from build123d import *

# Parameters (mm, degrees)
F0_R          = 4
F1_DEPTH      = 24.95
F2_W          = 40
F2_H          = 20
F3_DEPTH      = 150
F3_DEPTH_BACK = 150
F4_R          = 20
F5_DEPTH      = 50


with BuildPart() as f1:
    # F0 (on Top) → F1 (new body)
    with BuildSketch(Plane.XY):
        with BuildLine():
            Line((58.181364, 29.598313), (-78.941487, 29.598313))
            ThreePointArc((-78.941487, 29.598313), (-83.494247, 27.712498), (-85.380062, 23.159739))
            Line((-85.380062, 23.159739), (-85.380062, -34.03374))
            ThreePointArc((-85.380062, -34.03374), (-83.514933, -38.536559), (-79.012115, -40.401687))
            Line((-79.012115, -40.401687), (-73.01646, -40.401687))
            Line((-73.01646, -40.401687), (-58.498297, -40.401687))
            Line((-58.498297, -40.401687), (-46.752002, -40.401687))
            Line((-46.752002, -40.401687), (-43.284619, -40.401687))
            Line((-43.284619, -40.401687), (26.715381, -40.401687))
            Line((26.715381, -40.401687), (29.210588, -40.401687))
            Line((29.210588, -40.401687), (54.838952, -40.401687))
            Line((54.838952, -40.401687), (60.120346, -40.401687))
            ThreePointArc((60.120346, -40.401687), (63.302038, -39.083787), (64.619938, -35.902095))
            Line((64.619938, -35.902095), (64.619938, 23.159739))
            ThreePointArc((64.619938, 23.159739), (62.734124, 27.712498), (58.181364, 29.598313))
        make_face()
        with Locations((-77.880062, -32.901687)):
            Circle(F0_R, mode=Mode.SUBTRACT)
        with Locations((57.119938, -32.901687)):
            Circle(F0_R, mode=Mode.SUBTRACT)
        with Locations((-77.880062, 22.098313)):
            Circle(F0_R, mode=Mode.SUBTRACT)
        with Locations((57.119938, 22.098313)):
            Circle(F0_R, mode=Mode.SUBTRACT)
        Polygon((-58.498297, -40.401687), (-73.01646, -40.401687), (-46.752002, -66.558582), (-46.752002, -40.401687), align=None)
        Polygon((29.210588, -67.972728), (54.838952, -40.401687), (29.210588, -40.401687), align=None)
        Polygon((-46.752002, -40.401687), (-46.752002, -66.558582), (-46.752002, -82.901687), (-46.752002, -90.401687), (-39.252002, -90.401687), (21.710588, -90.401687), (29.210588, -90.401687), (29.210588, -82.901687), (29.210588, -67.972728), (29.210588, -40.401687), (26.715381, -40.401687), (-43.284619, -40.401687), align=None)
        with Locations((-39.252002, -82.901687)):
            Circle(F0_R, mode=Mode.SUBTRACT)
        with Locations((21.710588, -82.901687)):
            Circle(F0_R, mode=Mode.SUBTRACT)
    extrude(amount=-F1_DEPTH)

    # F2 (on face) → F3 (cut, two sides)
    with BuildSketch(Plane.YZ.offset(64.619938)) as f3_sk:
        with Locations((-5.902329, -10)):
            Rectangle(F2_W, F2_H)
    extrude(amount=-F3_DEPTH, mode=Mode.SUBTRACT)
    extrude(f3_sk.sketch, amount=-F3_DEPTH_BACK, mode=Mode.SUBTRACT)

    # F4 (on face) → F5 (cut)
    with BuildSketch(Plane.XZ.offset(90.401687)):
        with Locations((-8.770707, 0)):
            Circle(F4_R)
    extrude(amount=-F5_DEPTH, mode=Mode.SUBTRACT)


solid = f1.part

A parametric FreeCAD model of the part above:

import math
import FreeCAD as App
import Part
import Sketcher
from FreeCAD import Vector

doc = App.newDocument("Part")
params = doc.addObject("Spreadsheet::Sheet", "Params")
for row, (alias, value) in enumerate([
    ("sketch1_diameter", "8 mm"),
    ("pad1_length", "24.95 mm"),
    ("sketch2_width", "40 mm"),
    ("sketch2_height", "20 mm"),
    ("pocket1_length", "150 mm"),
    ("pocket2_length", "150 mm"),
    ("sketch3_diameter", "40 mm"),
    ("pocket3_length", "50 mm"),
], start=1):
    params.set(f"A{row}", alias)
    params.set(f"B{row}", "=" + value)
    params.setAlias(f"B{row}", alias)

body = doc.addObject("PartDesign::Body", "Body")

# Sketch on XY plane
sketch1 = body.newObject("Sketcher::SketchObject", "Sketch")
sketch1.AttachmentSupport = (doc.getObject("XY_Plane"), [""])
sketch1.MapMode = "FlatFace"
sketch1.addGeometry([
    Part.LineSegment(Vector(58.2, 29.6, 0), Vector(-78.9, 29.6, 0)),  # 0
    Part.ArcOfCircle(Part.Circle(Vector(-78.9, 23.2, 0), Vector(0, 0, 1), 6.4), math.radians(90), math.radians(180)),  # 1
    Part.LineSegment(Vector(-85.4, 23.2, 0), Vector(-85.4, -34, 0)),  # 2
    Part.ArcOfCircle(Part.Circle(Vector(-79, -34, 0), Vector(0, 0, 1), 6.4), math.radians(-180), math.radians(-90)),  # 3
    Part.LineSegment(Vector(-79, -40.4, 0), Vector(-73, -40.4, 0)),  # 4
    Part.LineSegment(Vector(-73, -40.4, 0), Vector(-46.8, -66.6, 0)),  # 5
    Part.LineSegment(Vector(-46.8, -66.6, 0), Vector(-46.8, -90.4, 0)),  # 6
    Part.LineSegment(Vector(-46.8, -90.4, 0), Vector(29.2, -90.4, 0)),  # 7
    Part.LineSegment(Vector(29.2, -90.4, 0), Vector(29.2, -68, 0)),  # 8
    Part.LineSegment(Vector(29.2, -68, 0), Vector(54.8, -40.4, 0)),  # 9
    Part.LineSegment(Vector(54.8, -40.4, 0), Vector(60.1, -40.4, 0)),  # 10
    Part.ArcOfCircle(Part.Circle(Vector(60.1, -35.9, 0), Vector(0, 0, 1), 4.5), math.radians(-90), math.radians(0)),  # 11
    Part.LineSegment(Vector(64.6, -35.9, 0), Vector(64.6, 23.2, 0)),  # 12
    Part.ArcOfCircle(Part.Circle(Vector(58.2, 23.2, 0), Vector(0, 0, 1), 6.4), math.radians(0), math.radians(90)),  # 13
    Part.Circle(Vector(-39.3, -82.9, 0), Vector(0, 0, 1), 4),  # 14
    Part.Circle(Vector(-77.9, -32.9, 0), Vector(0, 0, 1), 4),  # 15
    Part.Circle(Vector(21.7, -82.9, 0), Vector(0, 0, 1), 4),  # 16
    Part.Circle(Vector(57.1, -32.9, 0), Vector(0, 0, 1), 4),  # 17
    Part.Circle(Vector(-77.9, 22.1, 0), Vector(0, 0, 1), 4),  # 18
    Part.Circle(Vector(57.1, 22.1, 0), Vector(0, 0, 1), 4),  # 19
], False)
sketch1.addConstraint([
    Sketcher.Constraint("Tangent", 0, 2, 1, 1),
    Sketcher.Constraint("Tangent", 1, 2, 2, 1),
    Sketcher.Constraint("Tangent", 2, 2, 3, 1),
    Sketcher.Constraint("Tangent", 3, 2, 4, 1),
    Sketcher.Constraint("Coincident", 4, 2, 5, 1),
    Sketcher.Constraint("Coincident", 5, 2, 6, 1),
    Sketcher.Constraint("Coincident", 6, 2, 7, 1),
    Sketcher.Constraint("Coincident", 7, 2, 8, 1),
    Sketcher.Constraint("Coincident", 8, 2, 9, 1),
    Sketcher.Constraint("Coincident", 9, 2, 10, 1),
    Sketcher.Constraint("Tangent", 10, 2, 11, 1),
    Sketcher.Constraint("Tangent", 11, 2, 12, 1),
    Sketcher.Constraint("Tangent", 12, 2, 13, 1),
    Sketcher.Constraint("Tangent", 13, 2, 0, 1),
    Sketcher.Constraint("Horizontal", 0),
    Sketcher.Constraint("Vertical", 2),
    Sketcher.Constraint("Horizontal", 4),
    Sketcher.Constraint("Vertical", 6),
    Sketcher.Constraint("Horizontal", 7),
    Sketcher.Constraint("Vertical", 8),
    Sketcher.Constraint("Horizontal", 10),
    Sketcher.Constraint("Vertical", 12),
    Sketcher.Constraint("Equal", 1, 13),
    Sketcher.Constraint("Equal", 14, 15),
    Sketcher.Constraint("Equal", 15, 16),
    Sketcher.Constraint("Equal", 16, 17),
    Sketcher.Constraint("Equal", 17, 18),
    Sketcher.Constraint("Equal", 18, 19),
    Sketcher.Constraint("Horizontal", 14, 3, 16, 3),
    Sketcher.Constraint("Horizontal", 15, 3, 17, 3),
    Sketcher.Constraint("Horizontal", 18, 3, 19, 3),
    Sketcher.Constraint("Horizontal", 4, 2, 9, 2),
    Sketcher.Constraint("Vertical", 15, 3, 18, 3),
    Sketcher.Constraint("Vertical", 17, 3, 19, 3),
    Sketcher.Constraint("Diameter", 14, 8.0),
    Sketcher.Constraint("DistanceY", 14, 3, 15, 3, 50.0),
    Sketcher.Constraint("DistanceX", 15, 3, 17, 3, 135.0),
    Sketcher.Constraint("DistanceY", 15, 3, 18, 3, 55.0),
    Sketcher.Constraint("DistanceY", 6, 2, 4, 2, 50.0),
    Sketcher.Constraint("DistanceY", 18, 3, 0, 2, 7.5),
    Sketcher.Constraint("DistanceX", 1, 2, 18, 3, 7.5),
    Sketcher.Constraint("DistanceY", 3, 2, 15, 3, 7.5),
    Sketcher.Constraint("DistanceX", 5, 2, 14, 3, 7.5),
    Sketcher.Constraint("DistanceX", 16, 3, 7, 2, 7.5),
    Sketcher.Constraint("DistanceX", 17, 3, 11, 2, 7.5),
    Sketcher.Constraint("DistanceX", 14, 3, -1, 1, 39.252002),
    Sketcher.Constraint("Radius", 1, 6.438575),
    Sketcher.Constraint("Radius", 3, 6.367947),
    Sketcher.Constraint("Radius", 11, 4.499592),
    Sketcher.Constraint("DistanceX", 7, 1, 7, 2, 75.96259),
    Sketcher.Constraint("DistanceY", 8, 1, 8, 2, 22.428959),
    Sketcher.Constraint("DistanceX", 4, 1, 4, 2, 5.995655),
    Sketcher.Constraint("DistanceX", 10, 1, 10, 2, 5.281394),
    Sketcher.Constraint("DistanceY", 6, 2, 6, 1, 23.843105),
    Sketcher.Constraint("DistanceY", 3, 3, -1, 1, 34.03374),
    Sketcher.Constraint("DistanceX", 15, 3, -1, 1, 77.880062),
])
sketch1.setExpression("Constraints[34]", "Params.sketch1_diameter")
pad1 = body.newObject("PartDesign::Pad", "Pad")
pad1.Profile = sketch1
pad1.setExpression("Length", "Params.pad1_length")
pad1.Reversed = True

# Sketch on YZ plane
sketch2 = body.newObject("Sketcher::SketchObject", "Sketch001")
sketch2.AttachmentSupport = (doc.getObject("YZ_Plane"), [""])
sketch2.MapMode = "FlatFace"
sketch2.AttachmentOffset = App.Placement(Vector(0, 0, 64.619938), App.Rotation())
sketch2.addGeometry([
    Part.LineSegment(Vector(-26, 0, 0), Vector(-26, -20, 0)),
    Part.LineSegment(Vector(-26, -20, 0), Vector(14, -20, 0)),
    Part.LineSegment(Vector(14, -20, 0), Vector(14, 0, 0)),
    Part.LineSegment(Vector(14, 0, 0), Vector(-26, 0, 0)),
], False)
sketch2.addConstraint([
    Sketcher.Constraint("Coincident", 0, 2, 1, 1),
    Sketcher.Constraint("Coincident", 1, 2, 2, 1),
    Sketcher.Constraint("Coincident", 2, 2, 3, 1),
    Sketcher.Constraint("Coincident", 3, 2, 0, 1),
    Sketcher.Constraint("Vertical", 0),
    Sketcher.Constraint("Horizontal", 1),
    Sketcher.Constraint("Vertical", 2),
    Sketcher.Constraint("Horizontal", 3),
    Sketcher.Constraint("PointOnObject", 2, 2, -1),
    Sketcher.Constraint("DistanceX", 1, 1, 1, 2, 40.0),
    Sketcher.Constraint("DistanceY", 0, 2, 0, 1, 20.0),
    Sketcher.Constraint("DistanceX", 0, 2, -1, 1, 25.902329),
])
sketch2.setExpression("Constraints[9]", "Params.sketch2_width")
sketch2.setExpression("Constraints[10]", "Params.sketch2_height")
pocket1 = body.newObject("PartDesign::Pocket", "Pocket")
pocket1.Profile = sketch2
pocket1.setExpression("Length", "Params.pocket1_length")
pocket2 = body.newObject("PartDesign::Pocket", "Pocket001")
pocket2.Profile = sketch2
pocket2.setExpression("Length", "Params.pocket2_length")

# Sketch on XZ plane
sketch3 = body.newObject("Sketcher::SketchObject", "Sketch002")
sketch3.AttachmentSupport = (doc.getObject("XZ_Plane"), [""])
sketch3.MapMode = "FlatFace"
sketch3.AttachmentOffset = App.Placement(Vector(0, 0, 90.401687), App.Rotation())
sketch3.addGeometry(Part.Circle(Vector(-9, 0, 0), Vector(0, 0, 1), 20), False)
sketch3.addConstraint([
    Sketcher.Constraint("PointOnObject", 0, 3, -1),
    Sketcher.Constraint("Diameter", 0, 40.0),
    Sketcher.Constraint("DistanceX", 0, 3, -1, 1, 8.770707),
])
sketch3.setExpression("Constraints[1]", "Params.sketch3_diameter")
pocket3 = body.newObject("PartDesign::Pocket", "Pocket002")
pocket3.Profile = sketch3
pocket3.setExpression("Length", "Params.pocket3_length")

doc.recompute()
